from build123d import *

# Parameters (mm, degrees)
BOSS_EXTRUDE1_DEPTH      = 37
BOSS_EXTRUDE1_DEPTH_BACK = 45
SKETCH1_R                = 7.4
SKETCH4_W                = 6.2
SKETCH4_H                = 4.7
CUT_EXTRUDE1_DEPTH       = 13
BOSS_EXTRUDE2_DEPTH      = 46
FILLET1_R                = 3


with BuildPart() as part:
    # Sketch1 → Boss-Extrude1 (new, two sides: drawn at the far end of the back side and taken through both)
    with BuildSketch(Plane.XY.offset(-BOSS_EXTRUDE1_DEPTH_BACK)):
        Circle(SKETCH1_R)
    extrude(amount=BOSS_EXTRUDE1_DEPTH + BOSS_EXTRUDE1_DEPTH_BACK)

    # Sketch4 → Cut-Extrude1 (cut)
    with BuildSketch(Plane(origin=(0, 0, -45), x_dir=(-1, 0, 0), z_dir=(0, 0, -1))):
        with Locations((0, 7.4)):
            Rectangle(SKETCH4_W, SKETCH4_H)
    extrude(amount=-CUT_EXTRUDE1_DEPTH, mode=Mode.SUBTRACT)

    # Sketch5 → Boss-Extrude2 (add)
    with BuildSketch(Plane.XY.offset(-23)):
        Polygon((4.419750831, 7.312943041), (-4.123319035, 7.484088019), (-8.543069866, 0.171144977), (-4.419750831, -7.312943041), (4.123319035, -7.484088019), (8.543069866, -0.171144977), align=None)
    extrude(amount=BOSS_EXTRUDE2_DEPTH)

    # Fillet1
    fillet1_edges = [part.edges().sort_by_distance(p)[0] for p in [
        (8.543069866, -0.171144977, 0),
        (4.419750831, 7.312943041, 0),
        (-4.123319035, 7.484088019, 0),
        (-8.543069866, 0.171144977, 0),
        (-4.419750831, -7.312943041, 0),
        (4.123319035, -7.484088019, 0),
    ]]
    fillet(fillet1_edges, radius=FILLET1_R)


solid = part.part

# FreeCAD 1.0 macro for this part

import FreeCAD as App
import Part
import Sketcher

V = App.Vector
Q = App.Units.Quantity


def edges_at(feature, points):
    """Names of the edges that pass closest to the given points."""
    edges = feature.Shape.Edges
    near = lambda p: min(range(len(edges)), key=lambda i: edges[i].distToShape(Part.Vertex(*p))[0])
    return sorted({f"Edge{near(p) + 1}" for p in points})


def add_polygon(sketch, points):
    """Adds a closed chain of lines whose ends are joined by coincident constraints."""
    first, n = sketch.GeometryCount, len(points)
    for a, b in zip(points, points[1:] + points[:1]):
        sketch.addGeometry(Part.LineSegment(App.Vector(*a, 0), App.Vector(*b, 0)), False)
    for i in range(n):
        sketch.addConstraint(Sketcher.Constraint("Coincident", first + i, 2, first + (i + 1) % n, 1))

doc = App.newDocument("Part")
body = doc.addObject("PartDesign::Body", "Body")

# Sketch on XY plane
sketch1 = body.newObject("Sketcher::SketchObject", "Sketch")
sketch1.AttachmentSupport = (doc.getObject("XY_Plane"), [""])
sketch1.MapMode = "FlatFace"
sketch1.addGeometry(Part.Circle(V(0, 0, 0), V(0, 0, 1), 7), False)
sketch1.addConstraint([
    Sketcher.Constraint("Coincident", 0, 3, -1, 1),
    Sketcher.Constraint("Diameter", 0, Q("14.8 mm")),
])
pad1 = body.newObject("PartDesign::Pad", "Pad")
pad1.Profile = sketch1
pad1.Type = "TwoLengths"
pad1.Length = 37
pad1.Length2 = 45

# Sketch on XY plane
sketch2 = body.newObject("Sketcher::SketchObject", "Sketch001")
sketch2.AttachmentSupport = (doc.getObject("XY_Plane"), [""])
sketch2.MapMode = "FlatFace"
sketch2.AttachmentOffset = App.Placement(V(0, 0, -45), App.Rotation())
add_polygon(sketch2, [(3.1, 9.8), (3.1, 5), (-3.1, 5), (-3.1, 9.8)])  # lines 0-3
sketch2.addConstraint([
    Sketcher.Constraint("Vertical", 0),
    Sketcher.Constraint("Horizontal", 1),
    Sketcher.Constraint("Vertical", 2),
    Sketcher.Constraint("Horizontal", 3),
    Sketcher.Constraint("DistanceX", 1, 2, 1, 1, Q("6.2 mm")),
    Sketcher.Constraint("DistanceY", 0, 2, 0, 1, Q("4.7 mm")),
    Sketcher.Constraint("DistanceX", -1, 1, 0, 2, Q("3.1 mm")),
    Sketcher.Constraint("DistanceY", -1, 1, 0, 2, Q("5.05 mm")),
])
pocket1 = body.newObject("PartDesign::Pocket", "Pocket")
pocket1.Profile = sketch2
pocket1.Length = 13
pocket1.Reversed = True

# Sketch on XY plane
sketch3 = body.newObject("Sketcher::SketchObject", "Sketch002")
sketch3.AttachmentSupport = (doc.getObject("XY_Plane"), [""])
sketch3.MapMode = "FlatFace"
sketch3.AttachmentOffset = App.Placement(V(0, 0, -23), App.Rotation())
add_polygon(sketch3, [(4, 7), (-4, 7), (-9, 0), (-4, -7), (4, -7), (9, 0)])  # lines 0-5
sketch3.addConstraint([
    Sketcher.Constraint("Symmetric", 0, 2, 3, 2, -1, 1),
    Sketcher.Constraint("Symmetric", 1, 2, 4, 2, -1, 1),
    Sketcher.Constraint("Symmetric", 2, 2, 5, 2, -1, 1),
    Sketcher.Constraint("Equal", 0, 1),
    Sketcher.Constraint("Equal", 1, 2),
    Sketcher.Constraint("DistanceY", 2, 2, 4, 2, Q("7.141798 mm")),
    Sketcher.Constraint("DistanceX", 2, 2, 5, 2, Q("8.839502 mm")),
    Sketcher.Constraint("DistanceX", 0, 2, -1, 1, Q("4.123319 mm")),
    Sketcher.Constraint("DistanceY", -1, 1, 0, 2, Q("7.484088 mm")),
])
pad2 = body.newObject("PartDesign::Pad", "Pad001")
pad2.Profile = sketch3
pad2.Length = 46
doc.recompute()

fillet = body.newObject("PartDesign::Fillet", "Fillet")
fillet.Base = (pad2, edges_at(pad2, [
    (8.543, -0.171, 0),
    (4.42, 7.313, 0),
    (-4.123, 7.484, 0),
    (-8.543, 0.171, 0),
    (-4.42, -7.313, 0),
    (4.123, -7.484, 0),
]))
fillet.Radius = 3

doc.recompute()
